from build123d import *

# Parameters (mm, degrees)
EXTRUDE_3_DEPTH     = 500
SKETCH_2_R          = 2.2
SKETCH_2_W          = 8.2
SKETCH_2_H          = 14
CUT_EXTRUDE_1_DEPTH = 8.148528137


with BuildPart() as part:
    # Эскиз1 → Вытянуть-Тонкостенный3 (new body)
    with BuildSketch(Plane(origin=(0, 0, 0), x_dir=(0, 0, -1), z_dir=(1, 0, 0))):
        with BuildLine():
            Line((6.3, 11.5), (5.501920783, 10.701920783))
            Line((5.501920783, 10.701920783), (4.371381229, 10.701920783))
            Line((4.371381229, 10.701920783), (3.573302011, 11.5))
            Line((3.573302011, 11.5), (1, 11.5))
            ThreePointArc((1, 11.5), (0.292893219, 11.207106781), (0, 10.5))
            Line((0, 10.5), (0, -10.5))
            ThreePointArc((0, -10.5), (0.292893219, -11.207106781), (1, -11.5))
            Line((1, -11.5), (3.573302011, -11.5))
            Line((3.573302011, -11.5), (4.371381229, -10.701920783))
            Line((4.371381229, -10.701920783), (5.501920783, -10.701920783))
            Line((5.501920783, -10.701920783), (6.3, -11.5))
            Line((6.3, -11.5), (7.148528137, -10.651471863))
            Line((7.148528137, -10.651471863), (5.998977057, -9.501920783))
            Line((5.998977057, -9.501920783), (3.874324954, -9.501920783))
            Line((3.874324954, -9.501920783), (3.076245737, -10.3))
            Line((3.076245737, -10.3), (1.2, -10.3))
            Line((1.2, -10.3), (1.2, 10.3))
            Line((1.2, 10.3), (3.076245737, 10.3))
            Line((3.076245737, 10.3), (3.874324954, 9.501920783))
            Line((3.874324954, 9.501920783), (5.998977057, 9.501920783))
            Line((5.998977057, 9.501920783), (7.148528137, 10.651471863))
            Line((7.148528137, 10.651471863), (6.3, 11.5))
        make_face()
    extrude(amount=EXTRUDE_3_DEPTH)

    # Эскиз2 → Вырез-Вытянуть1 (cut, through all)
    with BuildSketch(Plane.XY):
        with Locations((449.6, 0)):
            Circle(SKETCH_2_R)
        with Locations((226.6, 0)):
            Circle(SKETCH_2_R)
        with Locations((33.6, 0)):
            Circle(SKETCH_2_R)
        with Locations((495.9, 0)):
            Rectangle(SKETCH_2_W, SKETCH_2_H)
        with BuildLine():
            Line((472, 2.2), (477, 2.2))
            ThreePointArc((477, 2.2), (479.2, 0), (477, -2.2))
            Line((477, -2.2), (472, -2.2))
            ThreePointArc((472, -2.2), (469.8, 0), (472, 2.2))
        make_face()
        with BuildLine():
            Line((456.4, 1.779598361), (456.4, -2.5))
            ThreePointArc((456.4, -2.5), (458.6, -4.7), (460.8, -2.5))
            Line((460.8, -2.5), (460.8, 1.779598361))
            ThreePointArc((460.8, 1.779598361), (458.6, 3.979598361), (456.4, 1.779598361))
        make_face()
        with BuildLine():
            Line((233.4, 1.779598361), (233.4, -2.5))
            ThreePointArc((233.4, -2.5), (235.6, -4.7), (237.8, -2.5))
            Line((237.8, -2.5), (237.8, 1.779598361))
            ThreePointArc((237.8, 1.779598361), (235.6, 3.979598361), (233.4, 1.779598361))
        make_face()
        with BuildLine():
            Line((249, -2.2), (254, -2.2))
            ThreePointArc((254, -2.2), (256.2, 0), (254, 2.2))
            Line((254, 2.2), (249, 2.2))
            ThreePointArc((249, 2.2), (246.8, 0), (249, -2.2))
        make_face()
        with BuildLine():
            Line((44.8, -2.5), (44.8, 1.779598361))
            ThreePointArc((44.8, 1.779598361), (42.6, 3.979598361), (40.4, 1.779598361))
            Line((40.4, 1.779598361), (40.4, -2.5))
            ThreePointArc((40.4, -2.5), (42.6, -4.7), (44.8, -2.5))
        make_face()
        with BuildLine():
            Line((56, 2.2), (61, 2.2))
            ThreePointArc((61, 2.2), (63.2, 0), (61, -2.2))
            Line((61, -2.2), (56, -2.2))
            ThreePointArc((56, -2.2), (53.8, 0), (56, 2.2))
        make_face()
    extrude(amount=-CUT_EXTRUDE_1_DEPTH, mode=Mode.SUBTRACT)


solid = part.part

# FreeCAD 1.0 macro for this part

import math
import FreeCAD as App
import Part
import Sketcher
Q = App.Units.Quantity

doc = App.newDocument("Part")
body = doc.addObject("PartDesign::Body", "Body")

sketch1 = doc.addObject("Sketcher::SketchObject", "Sketch")
body.addObject(sketch1)
sketch1.AttachmentSupport = (doc.YZ_Plane, [""])
sketch1.MapMode = "FlatFace"
sketch1.addGeometry([
    Part.LineSegment(App.Vector(11.5, -6.3, 0), App.Vector(10.701921, -5.501921, 0)),
    Part.LineSegment(App.Vector(10.701921, -5.501921, 0), App.Vector(10.701921, -4.371381, 0)),
    Part.LineSegment(App.Vector(10.701921, -4.371381, 0), App.Vector(11.5, -3.573302, 0)),
    Part.LineSegment(App.Vector(11.5, -3.573302, 0), App.Vector(11.5, -1, 0)),
    Part.ArcOfCircle(Part.Circle(App.Vector(10.5, -1, 0), App.Vector(0, 0, 1), 1), math.radians(0), math.radians(90)),
    Part.LineSegment(App.Vector(10.5, 0, 0), App.Vector(-10.5, 0, 0)),
    Part.ArcOfCircle(Part.Circle(App.Vector(-10.5, -1, 0), App.Vector(0, 0, 1), 1), math.radians(90), math.radians(180)),
    Part.LineSegment(App.Vector(-11.5, -1, 0), App.Vector(-11.5, -3.573302, 0)),
    Part.LineSegment(App.Vector(-11.5, -3.573302, 0), App.Vector(-10.701921, -4.371381, 0)),
    Part.LineSegment(App.Vector(-10.701921, -4.371381, 0), App.Vector(-10.701921, -5.501921, 0)),
    Part.LineSegment(App.Vector(-10.701921, -5.501921, 0), App.Vector(-11.5, -6.3, 0)),
    Part.LineSegment(App.Vector(-11.5, -6.3, 0), App.Vector(-10.651472, -7.148528, 0)),
    Part.LineSegment(App.Vector(-10.651472, -7.148528, 0), App.Vector(-9.501921, -5.998977, 0)),
    Part.LineSegment(App.Vector(-9.501921, -5.998977, 0), App.Vector(-9.501921, -3.874325, 0)),
    Part.LineSegment(App.Vector(-9.501921, -3.874325, 0), App.Vector(-10.3, -3.076246, 0)),
    Part.LineSegment(App.Vector(-10.3, -3.076246, 0), App.Vector(-10.3, -1.2, 0)),
    Part.LineSegment(App.Vector(-10.3, -1.2, 0), App.Vector(10.3, -1.2, 0)),
    Part.LineSegment(App.Vector(10.3, -1.2, 0), App.Vector(10.3, -3.076246, 0)),
    Part.LineSegment(App.Vector(10.3, -3.076246, 0), App.Vector(9.501921, -3.874325, 0)),
    Part.LineSegment(App.Vector(9.501921, -3.874325, 0), App.Vector(9.501921, -5.998977, 0)),
    Part.LineSegment(App.Vector(9.501921, -5.998977, 0), App.Vector(10.651472, -7.148528, 0)),
    Part.LineSegment(App.Vector(10.651472, -7.148528, 0), App.Vector(11.5, -6.3, 0)),
], False)
sketch1.addConstraint([
    Sketcher.Constraint("Coincident", 0, 2, 1, 1),
    Sketcher.Constraint("Coincident", 1, 2, 2, 1),
    Sketcher.Constraint("Coincident", 2, 2, 3, 1),
    Sketcher.Constraint("Tangent", 3, 2, 4, 1),
    Sketcher.Constraint("Tangent", 4, 2, 5, 1),
    Sketcher.Constraint("Tangent", 5, 2, 6, 1),
    Sketcher.Constraint("Tangent", 6, 2, 7, 1),
    Sketcher.Constraint("Coincident", 7, 2, 8, 1),
    Sketcher.Constraint("Coincident", 8, 2, 9, 1),
    Sketcher.Constraint("Coincident", 9, 2, 10, 1),
    Sketcher.Constraint("Coincident", 10, 2, 11, 1),
    Sketcher.Constraint("Coincident", 11, 2, 12, 1),
    Sketcher.Constraint("Coincident", 12, 2, 13, 1),
    Sketcher.Constraint("Coincident", 13, 2, 14, 1),
    Sketcher.Constraint("Coincident", 14, 2, 15, 1),
    Sketcher.Constraint("Coincident", 15, 2, 16, 1),
    Sketcher.Constraint("Coincident", 16, 2, 17, 1),
    Sketcher.Constraint("Coincident", 17, 2, 18, 1),
    Sketcher.Constraint("Coincident", 18, 2, 19, 1),
    Sketcher.Constraint("Coincident", 19, 2, 20, 1),
    Sketcher.Constraint("Coincident", 20, 2, 21, 1),
    Sketcher.Constraint("Coincident", 21, 2, 0, 1),
    Sketcher.Constraint("Vertical", 1),
    Sketcher.Constraint("Vertical", 3),
    Sketcher.Constraint("Horizontal", 5),
    Sketcher.Constraint("Vertical", 7),
    Sketcher.Constraint("Vertical", 9),
    Sketcher.Constraint("Vertical", 13),
    Sketcher.Constraint("Vertical", 15),
    Sketcher.Constraint("Horizontal", 16),
    Sketcher.Constraint("Vertical", 17),
    Sketcher.Constraint("Vertical", 19),
    Sketcher.Constraint("Equal", 4, 6),
    Sketcher.Constraint("Symmetric", 4, 2, 5, 2, -1, 1),
    Sketcher.Constraint("Symmetric", 1, 2, 8, 2, -2),
    Sketcher.Constraint("Symmetric", 14, 2, 17, 2, -2),
    Sketcher.Constraint("Symmetric", 13, 2, 18, 2, -2),
    Sketcher.Constraint("Symmetric", 11, 2, 20, 2, -2),
    Sketcher.Constraint("Symmetric", 10, 2, 21, 2, -2),
    Sketcher.Constraint("Perpendicular", 0, 2),
    Sketcher.Constraint("Perpendicular", 2, 8),
    Sketcher.Constraint("Perpendicular", 8, 10),
    Sketcher.Constraint("Perpendicular", 10, 11),
    Sketcher.Constraint("Perpendicular", 11, 12),
    Sketcher.Constraint("Perpendicular", 12, 14),
    Sketcher.Constraint("Perpendicular", 14, 18),
    Sketcher.Constraint("Perpendicular", 18, 20),
    Sketcher.Constraint("Vertical", 7, 2, 10, 2),
    Sketcher.Constraint("Equal", 10, 14),
    Sketcher.Constraint("Radius", 4, Q("1 mm")),
    Sketcher.Constraint("DistanceX", 5, 2, 5, 1, Q("21 mm")),
    Sketcher.Constraint("DistanceX", 16, 1, 16, 2, Q("20.6 mm")),
    Sketcher.Constraint("Distance", 11, Q("1.2 mm")),
    Sketcher.Constraint("DistanceY", 10, 2, -1, 1, Q("6.3 mm")),
    Sketcher.Constraint("DistanceY", 15, 2, -1, 1, Q("1.2 mm")),
    Sketcher.Constraint("DistanceY", 1, 1, 1, 2, Q("1.13054 mm")),
    Sketcher.Constraint("Distance", 12, Q("1.625711 mm")),
    Sketcher.Constraint("DistanceY", 13, 1, 13, 2, Q("2.124652 mm")),
])
pad1 = doc.addObject("PartDesign::Pad", "Pad")
body.addObject(pad1)
pad1.Profile = sketch1
pad1.Length = 500

sketch2 = doc.addObject("Sketcher::SketchObject", "Sketch001")
body.addObject(sketch2)
sketch2.AttachmentSupport = (doc.XY_Plane, [""])
sketch2.MapMode = "FlatFace"
sketch2.addGeometry([
    Part.Circle(App.Vector(449.6, 0, 0), App.Vector(0, 0, 1), 2.2),
    Part.Circle(App.Vector(226.6, 0, 0), App.Vector(0, 0, 1), 2.2),
    Part.Circle(App.Vector(33.6, 0, 0), App.Vector(0, 0, 1), 2.2),
    Part.LineSegment(App.Vector(491.8, 7, 0), App.Vector(491.8, -7, 0)),
    Part.LineSegment(App.Vector(491.8, -7, 0), App.Vector(500, -7, 0)),
    Part.LineSegment(App.Vector(500, -7, 0), App.Vector(500, 7, 0)),
    Part.LineSegment(App.Vector(500, 7, 0), App.Vector(491.8, 7, 0)),
    Part.LineSegment(App.Vector(477, 2.2, 0), App.Vector(472, 2.2, 0)),
    Part.ArcOfCircle(Part.Circle(App.Vector(472, 0, 0), App.Vector(0, 0, 1), 2.2), math.radians(90), math.radians(270)),
    Part.LineSegment(App.Vector(472, -2.2, 0), App.Vector(477, -2.2, 0)),
    Part.ArcOfCircle(Part.Circle(App.Vector(477, 0, 0), App.Vector(0, 0, 1), 2.2), math.radians(-90), math.radians(90)),
    Part.LineSegment(App.Vector(456.4, 1.779598, 0), App.Vector(456.4, -2.5, 0)),
    Part.ArcOfCircle(Part.Circle(App.Vector(458.6, -2.5, 0), App.Vector(0, 0, 1), 2.2), math.radians(180), math.radians(360)),
    Part.LineSegment(App.Vector(460.8, -2.5, 0), App.Vector(460.8, 1.779598, 0)),
    Part.ArcOfCircle(Part.Circle(App.Vector(458.6, 1.779598, 0), App.Vector(0, 0, 1), 2.2), math.radians(0), math.radians(180)),
    Part.LineSegment(App.Vector(233.4, 1.779598, 0), App.Vector(233.4, -2.5, 0)),
    Part.ArcOfCircle(Part.Circle(App.Vector(235.6, -2.5, 0), App.Vector(0, 0, 1), 2.2), math.radians(180), math.radians(360)),
    Part.LineSegment(App.Vector(237.8, -2.5, 0), App.Vector(237.8, 1.779598, 0)),
    Part.ArcOfCircle(Part.Circle(App.Vector(235.6, 1.779598, 0), App.Vector(0, 0, 1), 2.2), math.radians(0), math.radians(180)),
    Part.LineSegment(App.Vector(249, -2.2, 0), App.Vector(254, -2.2, 0)),
    Part.ArcOfCircle(Part.Circle(App.Vector(254, 0, 0), App.Vector(0, 0, 1), 2.2), math.radians(-90), math.radians(90)),
    Part.LineSegment(App.Vector(254, 2.2, 0), App.Vector(249, 2.2, 0)),
    Part.ArcOfCircle(Part.Circle(App.Vector(249, 0, 0), App.Vector(0, 0, 1), 2.2), math.radians(90), math.radians(270)),
    Part.LineSegment(App.Vector(44.8, -2.5, 0), App.Vector(44.8, 1.779598, 0)),
    Part.ArcOfCircle(Part.Circle(App.Vector(42.6, 1.779598, 0), App.Vector(0, 0, 1), 2.2), math.radians(0), math.radians(180)),
    Part.LineSegment(App.Vector(40.4, 1.779598, 0), App.Vector(40.4, -2.5, 0)),
    Part.ArcOfCircle(Part.Circle(App.Vector(42.6, -2.5, 0), App.Vector(0, 0, 1), 2.2), math.radians(180), math.radians(360)),
    Part.LineSegment(App.Vector(61, 2.2, 0), App.Vector(56, 2.2, 0)),
    Part.ArcOfCircle(Part.Circle(App.Vector(56, 0, 0), App.Vector(0, 0, 1), 2.2), math.radians(90), math.radians(270)),
    Part.LineSegment(App.Vector(56, -2.2, 0), App.Vector(61, -2.2, 0)),
    Part.ArcOfCircle(Part.Circle(App.Vector(61, 0, 0), App.Vector(0, 0, 1), 2.2), math.radians(-90), math.radians(90)),
], False)
sketch2.addConstraint([
    Sketcher.Constraint("Coincident", 3, 2, 4, 1),
    Sketcher.Constraint("Coincident", 4, 2, 5, 1),
    Sketcher.Constraint("Coincident", 5, 2, 6, 1),
    Sketcher.Constraint("Coincident", 6, 2, 3, 1),
    Sketcher.Constraint("Tangent", 7, 2, 8, 1),
    Sketcher.Constraint("Tangent", 8, 2, 9, 1),
    Sketcher.Constraint("Tangent", 9, 2, 10, 1),
    Sketcher.Constraint("Tangent", 10, 2, 7, 1),
    Sketcher.Constraint("Tangent", 11, 2, 12, 1),
    Sketcher.Constraint("Tangent", 12, 2, 13, 1),
    Sketcher.Constraint("Tangent", 13, 2, 14, 1),
    Sketcher.Constraint("Tangent", 14, 2, 11, 1),
    Sketcher.Constraint("Tangent", 15, 2, 16, 1),
    Sketcher.Constraint("Tangent", 16, 2, 17, 1),
    Sketcher.Constraint("Tangent", 17, 2, 18, 1),
    Sketcher.Constraint("Tangent", 18, 2, 15, 1),
    Sketcher.Constraint("Tangent", 19, 2, 20, 1),
    Sketcher.Constraint("Tangent", 20, 2, 21, 1),
    Sketcher.Constraint("Tangent", 21, 2, 22, 1),
    Sketcher.Constraint("Tangent", 22, 2, 19, 1),
    Sketcher.Constraint("Tangent", 23, 2, 24, 1),
    Sketcher.Constraint("Tangent", 24, 2, 25, 1),
    Sketcher.Constraint("Tangent", 25, 2, 26, 1),
    Sketcher.Constraint("Tangent", 26, 2, 23, 1),
    Sketcher.Constraint("Tangent", 27, 2, 28, 1),
    Sketcher.Constraint("Tangent", 28, 2, 29, 1),
    Sketcher.Constraint("Tangent", 29, 2, 30, 1),
    Sketcher.Constraint("Tangent", 30, 2, 27, 1),
    Sketcher.Constraint("Vertical", 3),
    Sketcher.Constraint("Horizontal", 4),
    Sketcher.Constraint("Vertical", 5),
    Sketcher.Constraint("Horizontal", 6),
    Sketcher.Constraint("Horizontal", 7),
    Sketcher.Constraint("Horizontal", 9),
    Sketcher.Constraint("Vertical", 11),
    Sketcher.Constraint("Vertical", 13),
    Sketcher.Constraint("Vertical", 15),
    Sketcher.Constraint("Vertical", 17),
    Sketcher.Constraint("Horizontal", 19),
    Sketcher.Constraint("Horizontal", 21),
    Sketcher.Constraint("Vertical", 23),
    Sketcher.Constraint("Vertical", 25),
    Sketcher.Constraint("Horizontal", 27),
    Sketcher.Constraint("Horizontal", 29),
    Sketcher.Constraint("Equal", 0, 1),
    Sketcher.Constraint("Equal", 1, 2),
    Sketcher.Constraint("Equal", 2, 8),
    Sketcher.Constraint("Equal", 10, 12),
    Sketcher.Constraint("Equal", 14, 16),
    Sketcher.Constraint("Equal", 18, 20),
    Sketcher.Constraint("Equal", 22, 24),
    Sketcher.Constraint("Equal", 26, 28),
    Sketcher.Constraint("PointOnObject", 0, 3, -1),
    Sketcher.Constraint("PointOnObject", 1, 3, -1),
    Sketcher.Constraint("PointOnObject", 2, 3, -1),
    Sketcher.Constraint("PointOnObject", 8, 3, -1),
    Sketcher.Constraint("PointOnObject", 20, 3, -1),
    Sketcher.Constraint("PointOnObject", 28, 3, -1),
    Sketcher.Constraint("Horizontal", 12, 3, 16, 3),
    Sketcher.Constraint("Horizontal", 14, 3, 18, 3),
    Sketcher.Constraint("Horizontal", 18, 3, 24, 3),
    Sketcher.Constraint("Horizontal", 16, 3, 26, 3),
    Sketcher.Constraint("Equal", 9, 19),
    Sketcher.Constraint("Equal", 21, 27),
    Sketcher.Constraint("Diameter", 0, Q("4.4 mm")),
    Sketcher.Constraint("DistanceX", 7, 2, 7, 1, Q("5 mm")),
    Sketcher.Constraint("DistanceY", 3, 2, 3, 1, Q("14 mm")),
    Sketcher.Constraint("DistanceX", 4, 1, 4, 2, Q("8.2 mm")),
    Sketcher.Constraint("DistanceX", -1, 1, 8, 3, Q("472 mm")),
    Sketcher.Constraint("DistanceX", -1, 1, 20, 3, Q("254 mm")),
    Sketcher.Constraint("DistanceX", -1, 1, 28, 3, Q("56 mm")),
    Sketcher.Constraint("DistanceY", 3, 2, -1, 1, Q("7 mm")),
    Sketcher.Constraint("DistanceX", -1, 1, 4, 2, Q("500 mm")),
    Sketcher.Constraint("DistanceX", 1, 3, 0, 3, Q("223 mm")),
    Sketcher.Constraint("DistanceX", 2, 3, 1, 3, Q("193 mm")),
    Sketcher.Constraint("DistanceX", 0, 3, 12, 3, Q("9 mm")),
    Sketcher.Constraint("DistanceX", 1, 3, 16, 3, Q("9 mm")),
    Sketcher.Constraint("DistanceX", 2, 3, 24, 3, Q("9 mm")),
    Sketcher.Constraint("DistanceX", -1, 1, 0, 3, Q("449.6 mm")),
    Sketcher.Constraint("DistanceY", 12, 3, -1, 1, Q("2.5 mm")),
    Sketcher.Constraint("DistanceY", 11, 2, 11, 1, Q("4.279598 mm")),
])
pocket1 = doc.addObject("PartDesign::Pocket", "Pocket")
body.addObject(pocket1)
pocket1.Profile = sketch2
pocket1.Type = "ThroughAll"

doc.recompute()
